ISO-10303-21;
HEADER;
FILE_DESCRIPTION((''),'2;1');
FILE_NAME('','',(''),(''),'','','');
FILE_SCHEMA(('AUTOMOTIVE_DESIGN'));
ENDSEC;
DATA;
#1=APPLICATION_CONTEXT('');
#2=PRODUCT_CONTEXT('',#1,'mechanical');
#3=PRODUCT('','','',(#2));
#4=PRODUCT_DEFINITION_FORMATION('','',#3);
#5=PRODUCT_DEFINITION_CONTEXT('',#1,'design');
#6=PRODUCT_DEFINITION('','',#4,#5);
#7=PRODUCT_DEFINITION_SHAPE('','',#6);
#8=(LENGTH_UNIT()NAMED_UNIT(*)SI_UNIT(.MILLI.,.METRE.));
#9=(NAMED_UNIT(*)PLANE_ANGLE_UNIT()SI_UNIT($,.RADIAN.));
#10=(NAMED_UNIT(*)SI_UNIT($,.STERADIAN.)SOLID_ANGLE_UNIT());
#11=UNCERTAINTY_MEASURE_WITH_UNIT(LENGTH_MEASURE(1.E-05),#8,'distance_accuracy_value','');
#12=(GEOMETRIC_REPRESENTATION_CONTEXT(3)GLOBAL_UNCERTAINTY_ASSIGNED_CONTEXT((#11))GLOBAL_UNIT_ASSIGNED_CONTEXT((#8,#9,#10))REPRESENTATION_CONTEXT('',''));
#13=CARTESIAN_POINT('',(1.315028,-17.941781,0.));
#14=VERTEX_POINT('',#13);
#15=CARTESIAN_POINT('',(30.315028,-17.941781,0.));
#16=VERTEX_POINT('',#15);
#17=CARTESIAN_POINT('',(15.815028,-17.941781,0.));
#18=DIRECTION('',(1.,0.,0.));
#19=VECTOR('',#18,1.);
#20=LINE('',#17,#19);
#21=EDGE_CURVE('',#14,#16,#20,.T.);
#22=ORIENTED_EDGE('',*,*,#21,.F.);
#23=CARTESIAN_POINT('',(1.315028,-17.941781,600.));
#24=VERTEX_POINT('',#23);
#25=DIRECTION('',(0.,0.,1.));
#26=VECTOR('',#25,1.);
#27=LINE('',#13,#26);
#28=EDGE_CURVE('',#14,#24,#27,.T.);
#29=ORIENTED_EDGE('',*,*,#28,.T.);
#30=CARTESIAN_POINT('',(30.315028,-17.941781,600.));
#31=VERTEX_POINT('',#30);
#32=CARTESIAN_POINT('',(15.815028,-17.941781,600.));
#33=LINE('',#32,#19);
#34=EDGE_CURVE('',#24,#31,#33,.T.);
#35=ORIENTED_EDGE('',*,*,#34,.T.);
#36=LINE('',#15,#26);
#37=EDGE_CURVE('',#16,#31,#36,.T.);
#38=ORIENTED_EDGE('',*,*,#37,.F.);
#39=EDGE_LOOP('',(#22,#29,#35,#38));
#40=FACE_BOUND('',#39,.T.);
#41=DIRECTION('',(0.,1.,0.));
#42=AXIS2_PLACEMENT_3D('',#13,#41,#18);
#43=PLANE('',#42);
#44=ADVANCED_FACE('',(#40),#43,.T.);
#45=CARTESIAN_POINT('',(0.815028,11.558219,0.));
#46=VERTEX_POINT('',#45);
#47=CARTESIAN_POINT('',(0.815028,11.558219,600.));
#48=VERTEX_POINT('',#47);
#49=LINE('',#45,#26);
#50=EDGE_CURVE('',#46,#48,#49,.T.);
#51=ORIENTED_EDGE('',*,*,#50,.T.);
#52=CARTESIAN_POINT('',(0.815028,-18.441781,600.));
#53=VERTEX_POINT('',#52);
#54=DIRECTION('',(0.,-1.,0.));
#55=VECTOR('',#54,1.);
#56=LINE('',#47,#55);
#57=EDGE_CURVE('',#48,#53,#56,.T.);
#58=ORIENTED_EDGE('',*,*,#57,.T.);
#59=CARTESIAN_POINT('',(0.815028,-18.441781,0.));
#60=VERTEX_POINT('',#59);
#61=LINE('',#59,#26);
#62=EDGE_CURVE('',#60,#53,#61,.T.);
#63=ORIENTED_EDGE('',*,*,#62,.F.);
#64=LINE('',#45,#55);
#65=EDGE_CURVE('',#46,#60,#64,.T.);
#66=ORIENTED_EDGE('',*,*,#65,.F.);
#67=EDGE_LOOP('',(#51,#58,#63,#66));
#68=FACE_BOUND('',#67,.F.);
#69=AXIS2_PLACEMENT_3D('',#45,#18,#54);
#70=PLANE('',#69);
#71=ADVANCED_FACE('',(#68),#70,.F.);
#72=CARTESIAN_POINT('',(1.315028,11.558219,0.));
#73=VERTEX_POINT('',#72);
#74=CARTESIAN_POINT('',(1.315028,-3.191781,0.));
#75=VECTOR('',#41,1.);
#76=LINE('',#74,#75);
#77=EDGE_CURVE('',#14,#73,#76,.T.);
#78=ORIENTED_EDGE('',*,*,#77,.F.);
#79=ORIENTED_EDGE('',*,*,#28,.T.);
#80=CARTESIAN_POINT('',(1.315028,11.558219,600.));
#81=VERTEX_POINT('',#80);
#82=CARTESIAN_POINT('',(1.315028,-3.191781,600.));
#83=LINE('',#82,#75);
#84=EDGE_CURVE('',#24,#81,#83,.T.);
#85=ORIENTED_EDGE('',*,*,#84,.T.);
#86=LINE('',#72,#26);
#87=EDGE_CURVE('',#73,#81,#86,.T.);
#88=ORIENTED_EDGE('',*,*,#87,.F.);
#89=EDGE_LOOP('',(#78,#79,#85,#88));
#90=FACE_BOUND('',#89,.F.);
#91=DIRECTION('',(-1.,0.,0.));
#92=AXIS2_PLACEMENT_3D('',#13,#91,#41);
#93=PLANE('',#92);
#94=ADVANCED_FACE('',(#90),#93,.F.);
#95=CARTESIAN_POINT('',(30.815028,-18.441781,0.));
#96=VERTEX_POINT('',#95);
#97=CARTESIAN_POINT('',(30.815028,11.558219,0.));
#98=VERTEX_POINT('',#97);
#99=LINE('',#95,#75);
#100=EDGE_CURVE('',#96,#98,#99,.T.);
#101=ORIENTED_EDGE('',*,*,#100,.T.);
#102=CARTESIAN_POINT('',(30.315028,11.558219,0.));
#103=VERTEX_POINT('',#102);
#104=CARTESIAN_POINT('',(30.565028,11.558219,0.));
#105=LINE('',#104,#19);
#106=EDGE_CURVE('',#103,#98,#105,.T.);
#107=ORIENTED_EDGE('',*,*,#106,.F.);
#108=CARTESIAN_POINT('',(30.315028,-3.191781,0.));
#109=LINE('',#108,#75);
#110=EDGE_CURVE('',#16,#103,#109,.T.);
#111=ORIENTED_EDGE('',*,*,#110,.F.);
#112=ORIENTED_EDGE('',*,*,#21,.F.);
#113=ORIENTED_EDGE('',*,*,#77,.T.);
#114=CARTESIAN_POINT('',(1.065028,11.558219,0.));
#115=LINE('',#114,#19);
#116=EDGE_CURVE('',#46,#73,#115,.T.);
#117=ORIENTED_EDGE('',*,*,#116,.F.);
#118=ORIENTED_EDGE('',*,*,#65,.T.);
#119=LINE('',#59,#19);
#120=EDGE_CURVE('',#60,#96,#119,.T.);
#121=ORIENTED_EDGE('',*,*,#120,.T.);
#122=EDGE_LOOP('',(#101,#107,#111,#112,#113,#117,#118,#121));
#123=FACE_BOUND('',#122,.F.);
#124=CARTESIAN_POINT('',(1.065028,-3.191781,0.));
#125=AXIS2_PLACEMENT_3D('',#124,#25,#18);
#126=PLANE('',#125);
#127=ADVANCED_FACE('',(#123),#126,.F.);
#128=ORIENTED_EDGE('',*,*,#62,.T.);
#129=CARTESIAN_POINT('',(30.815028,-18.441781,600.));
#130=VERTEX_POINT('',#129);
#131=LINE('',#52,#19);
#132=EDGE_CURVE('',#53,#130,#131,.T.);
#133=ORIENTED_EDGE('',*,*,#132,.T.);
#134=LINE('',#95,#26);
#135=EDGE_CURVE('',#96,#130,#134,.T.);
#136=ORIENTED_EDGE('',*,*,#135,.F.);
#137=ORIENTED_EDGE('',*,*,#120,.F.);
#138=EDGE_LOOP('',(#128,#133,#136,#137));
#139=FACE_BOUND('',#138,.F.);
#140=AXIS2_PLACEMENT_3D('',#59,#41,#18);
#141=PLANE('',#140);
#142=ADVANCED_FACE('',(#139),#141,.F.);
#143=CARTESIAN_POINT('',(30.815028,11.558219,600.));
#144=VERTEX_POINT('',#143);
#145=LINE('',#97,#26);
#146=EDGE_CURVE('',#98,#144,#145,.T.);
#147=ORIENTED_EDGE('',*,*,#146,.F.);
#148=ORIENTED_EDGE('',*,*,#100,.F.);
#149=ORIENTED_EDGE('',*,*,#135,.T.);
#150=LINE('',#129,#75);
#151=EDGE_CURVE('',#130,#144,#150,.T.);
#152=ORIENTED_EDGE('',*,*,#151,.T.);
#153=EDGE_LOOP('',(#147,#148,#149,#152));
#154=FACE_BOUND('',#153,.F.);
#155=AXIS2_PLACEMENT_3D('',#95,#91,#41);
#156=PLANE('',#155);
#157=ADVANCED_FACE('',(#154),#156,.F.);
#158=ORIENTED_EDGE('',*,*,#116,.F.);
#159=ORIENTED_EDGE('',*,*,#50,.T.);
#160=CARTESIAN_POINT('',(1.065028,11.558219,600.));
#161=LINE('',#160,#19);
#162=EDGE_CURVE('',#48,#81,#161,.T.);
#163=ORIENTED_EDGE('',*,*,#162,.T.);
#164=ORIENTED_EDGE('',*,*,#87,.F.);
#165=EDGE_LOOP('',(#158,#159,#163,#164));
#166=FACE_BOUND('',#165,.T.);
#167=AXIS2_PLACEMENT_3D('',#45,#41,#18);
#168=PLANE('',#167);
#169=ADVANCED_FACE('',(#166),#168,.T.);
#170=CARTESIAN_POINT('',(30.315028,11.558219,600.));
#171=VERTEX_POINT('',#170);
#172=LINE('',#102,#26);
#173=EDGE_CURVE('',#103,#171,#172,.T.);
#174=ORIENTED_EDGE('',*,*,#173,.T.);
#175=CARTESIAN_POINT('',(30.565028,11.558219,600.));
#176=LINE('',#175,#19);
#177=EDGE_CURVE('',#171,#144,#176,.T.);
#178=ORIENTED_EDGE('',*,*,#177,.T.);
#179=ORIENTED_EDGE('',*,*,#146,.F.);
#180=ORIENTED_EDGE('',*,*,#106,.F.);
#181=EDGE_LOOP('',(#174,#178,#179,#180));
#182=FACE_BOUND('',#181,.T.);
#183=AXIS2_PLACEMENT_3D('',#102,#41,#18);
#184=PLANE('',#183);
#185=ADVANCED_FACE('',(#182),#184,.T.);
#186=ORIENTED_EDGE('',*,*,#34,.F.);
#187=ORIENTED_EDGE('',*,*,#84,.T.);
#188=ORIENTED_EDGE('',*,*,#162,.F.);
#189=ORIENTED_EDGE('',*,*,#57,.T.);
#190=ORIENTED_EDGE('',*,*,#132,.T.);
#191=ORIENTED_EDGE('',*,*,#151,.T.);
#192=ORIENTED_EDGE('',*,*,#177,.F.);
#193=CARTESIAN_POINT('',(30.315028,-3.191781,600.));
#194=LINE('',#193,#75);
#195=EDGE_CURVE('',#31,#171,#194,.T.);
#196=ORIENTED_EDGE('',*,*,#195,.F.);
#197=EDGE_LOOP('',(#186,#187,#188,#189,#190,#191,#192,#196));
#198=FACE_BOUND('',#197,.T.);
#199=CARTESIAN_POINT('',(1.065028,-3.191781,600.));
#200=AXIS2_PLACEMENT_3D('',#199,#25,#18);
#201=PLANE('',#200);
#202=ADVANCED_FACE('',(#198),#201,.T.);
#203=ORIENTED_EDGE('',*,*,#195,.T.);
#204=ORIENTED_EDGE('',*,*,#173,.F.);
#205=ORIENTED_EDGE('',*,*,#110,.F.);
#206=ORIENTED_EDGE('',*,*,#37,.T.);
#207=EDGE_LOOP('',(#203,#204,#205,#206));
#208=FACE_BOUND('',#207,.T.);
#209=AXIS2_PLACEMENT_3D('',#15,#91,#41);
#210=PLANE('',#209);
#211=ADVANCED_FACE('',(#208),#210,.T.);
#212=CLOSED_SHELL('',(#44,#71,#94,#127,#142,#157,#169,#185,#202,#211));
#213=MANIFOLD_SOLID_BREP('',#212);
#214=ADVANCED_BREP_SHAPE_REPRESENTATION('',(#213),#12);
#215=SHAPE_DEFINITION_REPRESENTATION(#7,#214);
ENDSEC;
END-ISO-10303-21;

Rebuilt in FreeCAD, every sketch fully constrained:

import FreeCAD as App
import Part
import Sketcher
Q = App.Units.Quantity

doc = App.newDocument("Part")
body = doc.addObject("PartDesign::Body", "Body")

# Sketch on XY plane
sketch1 = doc.addObject("Sketcher::SketchObject", "Sketch")
body.addObject(sketch1)
sketch1.AttachmentSupport = (doc.XY_Plane, [""])
sketch1.MapMode = "FlatFace"
sketch1.addGeometry([
    Part.LineSegment(App.Vector(0.815028, 11.558219, 0), App.Vector(0.815028, -18.441781, 0)),  # 0
    Part.LineSegment(App.Vector(0.815028, -18.441781, 0), App.Vector(30.815028, -18.441781, 0)),  # 1
    Part.LineSegment(App.Vector(30.815028, -18.441781, 0), App.Vector(30.815028, 11.558219, 0)),  # 2
    Part.LineSegment(App.Vector(30.815028, 11.558219, 0), App.Vector(30.315028, 11.558219, 0)),  # 3
    Part.LineSegment(App.Vector(30.315028, 11.558219, 0), App.Vector(30.315028, -17.941781, 0)),  # 4
    Part.LineSegment(App.Vector(30.315028, -17.941781, 0), App.Vector(1.315028, -17.941781, 0)),  # 5
    Part.LineSegment(App.Vector(1.315028, -17.941781, 0), App.Vector(1.315028, 11.558219, 0)),  # 6
    Part.LineSegment(App.Vector(1.315028, 11.558219, 0), App.Vector(0.815028, 11.558219, 0)),  # 7
], False)
sketch1.addConstraint([
    Sketcher.Constraint("Coincident", 0, 2, 1, 1),
    Sketcher.Constraint("Coincident", 1, 2, 2, 1),
    Sketcher.Constraint("Coincident", 2, 2, 3, 1),
    Sketcher.Constraint("Coincident", 3, 2, 4, 1),
    Sketcher.Constraint("Coincident", 4, 2, 5, 1),
    Sketcher.Constraint("Coincident", 5, 2, 6, 1),
    Sketcher.Constraint("Coincident", 6, 2, 7, 1),
    Sketcher.Constraint("Coincident", 7, 2, 0, 1),
    Sketcher.Constraint("Vertical", 0),
    Sketcher.Constraint("Horizontal", 1),
    Sketcher.Constraint("Vertical", 2),
    Sketcher.Constraint("Horizontal", 3),
    Sketcher.Constraint("Vertical", 4),
    Sketcher.Constraint("Horizontal", 5),
    Sketcher.Constraint("Vertical", 6),
    Sketcher.Constraint("Horizontal", 7),
    Sketcher.Constraint("Horizontal", 3, 2, 6, 2),
    Sketcher.Constraint("Equal", 3, 7),
    Sketcher.Constraint("Equal", 1, 0),
    Sketcher.Constraint("DistanceX", 1, 1, 1, 2, Q("30 mm")),
    Sketcher.Constraint("DistanceX", 5, 2, 5, 1, Q("29 mm")),
    Sketcher.Constraint("DistanceY", 4, 2, 4, 1, Q("29.5 mm")),
    Sketcher.Constraint("DistanceX", -1, 1, 0, 2, Q("0.815028 mm")),
    Sketcher.Constraint("DistanceY", 0, 2, -1, 1, Q("18.441781 mm")),
])
pad1 = doc.addObject("PartDesign::Pad", "Pad")
body.addObject(pad1)
pad1.Profile = sketch1
pad1.Length = 600

doc.recompute()
